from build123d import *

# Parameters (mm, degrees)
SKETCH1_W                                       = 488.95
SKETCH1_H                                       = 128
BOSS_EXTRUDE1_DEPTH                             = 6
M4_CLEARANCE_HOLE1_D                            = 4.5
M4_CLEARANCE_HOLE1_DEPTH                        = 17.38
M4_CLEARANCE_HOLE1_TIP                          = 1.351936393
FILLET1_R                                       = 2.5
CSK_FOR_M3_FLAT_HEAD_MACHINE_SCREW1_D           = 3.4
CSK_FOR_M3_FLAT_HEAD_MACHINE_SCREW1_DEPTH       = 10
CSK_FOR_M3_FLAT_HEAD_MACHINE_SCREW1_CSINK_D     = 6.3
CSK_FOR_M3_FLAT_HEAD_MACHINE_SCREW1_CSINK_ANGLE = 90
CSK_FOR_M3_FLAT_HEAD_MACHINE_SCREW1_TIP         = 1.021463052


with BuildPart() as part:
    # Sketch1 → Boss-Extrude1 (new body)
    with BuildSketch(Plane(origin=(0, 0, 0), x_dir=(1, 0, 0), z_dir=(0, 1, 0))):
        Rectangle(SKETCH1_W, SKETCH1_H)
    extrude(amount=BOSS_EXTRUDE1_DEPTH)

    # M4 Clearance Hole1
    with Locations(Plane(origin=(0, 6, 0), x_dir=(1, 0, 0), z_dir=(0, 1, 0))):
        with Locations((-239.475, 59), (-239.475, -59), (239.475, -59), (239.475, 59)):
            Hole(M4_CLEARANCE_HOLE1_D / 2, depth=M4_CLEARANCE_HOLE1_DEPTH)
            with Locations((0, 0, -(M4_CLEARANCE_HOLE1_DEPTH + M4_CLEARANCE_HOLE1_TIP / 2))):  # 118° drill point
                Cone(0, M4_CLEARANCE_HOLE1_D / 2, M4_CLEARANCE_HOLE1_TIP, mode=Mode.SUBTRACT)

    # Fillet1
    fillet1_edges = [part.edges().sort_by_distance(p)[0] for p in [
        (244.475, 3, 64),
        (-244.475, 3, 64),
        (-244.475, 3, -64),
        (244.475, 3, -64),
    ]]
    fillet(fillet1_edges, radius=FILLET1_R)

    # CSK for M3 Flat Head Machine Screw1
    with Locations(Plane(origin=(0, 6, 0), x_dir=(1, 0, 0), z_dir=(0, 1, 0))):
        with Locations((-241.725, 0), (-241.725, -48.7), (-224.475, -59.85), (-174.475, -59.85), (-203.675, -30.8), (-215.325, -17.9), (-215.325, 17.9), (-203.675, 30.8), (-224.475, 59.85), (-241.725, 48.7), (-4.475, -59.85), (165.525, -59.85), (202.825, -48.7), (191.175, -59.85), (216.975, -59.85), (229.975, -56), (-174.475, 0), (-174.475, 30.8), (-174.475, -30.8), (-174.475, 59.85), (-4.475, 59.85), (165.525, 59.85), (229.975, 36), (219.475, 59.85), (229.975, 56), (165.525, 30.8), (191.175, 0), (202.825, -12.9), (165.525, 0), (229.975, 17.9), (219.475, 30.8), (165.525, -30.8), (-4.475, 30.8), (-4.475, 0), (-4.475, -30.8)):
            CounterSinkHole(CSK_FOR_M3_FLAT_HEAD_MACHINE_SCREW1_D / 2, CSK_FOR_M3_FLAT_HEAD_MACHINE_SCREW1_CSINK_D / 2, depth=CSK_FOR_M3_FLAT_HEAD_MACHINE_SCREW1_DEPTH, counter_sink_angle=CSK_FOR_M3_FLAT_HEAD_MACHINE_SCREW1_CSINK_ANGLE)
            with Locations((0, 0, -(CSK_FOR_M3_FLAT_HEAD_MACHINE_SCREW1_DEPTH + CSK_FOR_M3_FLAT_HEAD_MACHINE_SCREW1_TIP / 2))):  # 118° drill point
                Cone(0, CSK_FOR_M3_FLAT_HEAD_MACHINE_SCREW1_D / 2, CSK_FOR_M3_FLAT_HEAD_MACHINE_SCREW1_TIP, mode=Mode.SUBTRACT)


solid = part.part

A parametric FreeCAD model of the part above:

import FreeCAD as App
import Part
import Sketcher
from FreeCAD import Vector
Q = App.Units.Quantity


def edges_at(feature, points):
    """Names of the edges that pass closest to the given points."""
    edges = feature.Shape.Edges
    near = lambda p: min(range(len(edges)), key=lambda i: edges[i].distToShape(Part.Vertex(*p))[0])
    return sorted({f"Edge{near(p) + 1}" for p in points})

doc = App.newDocument("Part")
params = doc.addObject("Spreadsheet::Sheet", "Params")
for row, (alias, value) in enumerate([
    ("sketch1_height", "128 mm"),
    ("sketch1_width", "488.95 mm"),
    ("pad1_length", "6 mm"),
    ("sketch2_diameter", "4.5 mm"),
    ("hole_diameter", "4.5 mm"),
    ("hole_depth", "17.38 mm"),
    ("fillet_radius", "2.5 mm"),
    ("sketch3_diameter", "3.4 mm"),
    ("hole2_diameter", "3.4 mm"),
    ("hole2_depth", "10 mm"),
    ("hole2_csink_diameter", "6.3 mm"),
], start=1):
    params.set(f"A{row}", alias)
    params.set(f"B{row}", "=" + value)
    params.setAlias(f"B{row}", alias)

body = doc.addObject("PartDesign::Body", "Body")

# Sketch on XZ plane
sketch1 = body.newObject("Sketcher::SketchObject", "Sketch")
sketch1.AttachmentSupport = (doc.getObject("XZ_Plane"), [""])
sketch1.MapMode = "FlatFace"
sketch1.addGeometry([
    Part.LineSegment(Vector(-244.475, -64, 0), Vector(-244.475, 64, 0)),
    Part.LineSegment(Vector(-244.475, 64, 0), Vector(244.475, 64, 0)),
    Part.LineSegment(Vector(244.475, 64, 0), Vector(244.475, -64, 0)),
    Part.LineSegment(Vector(244.475, -64, 0), Vector(-244.475, -64, 0)),
], False)
sketch1.addConstraint([
    Sketcher.Constraint("Coincident", 0, 2, 1, 1),
    Sketcher.Constraint("Coincident", 1, 2, 2, 1),
    Sketcher.Constraint("Coincident", 2, 2, 3, 1),
    Sketcher.Constraint("Coincident", 3, 2, 0, 1),
    Sketcher.Constraint("Vertical", 0),
    Sketcher.Constraint("Horizontal", 1),
    Sketcher.Constraint("Vertical", 2),
    Sketcher.Constraint("Horizontal", 3),
    Sketcher.Constraint("Symmetric", 0, 2, 2, 2, -1, 1),
    Sketcher.Constraint("DistanceY", 0, 1, 0, 2, Q("128 mm")),
    Sketcher.Constraint("DistanceX", 1, 1, 1, 2, Q("488.95 mm")),
])
sketch1.setExpression("Constraints[9]", "Params.sketch1_height")
sketch1.setExpression("Constraints[10]", "Params.sketch1_width")
pad1 = body.newObject("PartDesign::Pad", "Pad")
pad1.Profile = sketch1
pad1.setExpression("Length", "Params.pad1_length")
pad1.Reversed = True

# Sketch on XZ plane
sketch2 = body.newObject("Sketcher::SketchObject", "Sketch001")
sketch2.AttachmentSupport = (doc.getObject("XZ_Plane"), [""])
sketch2.MapMode = "FlatFace"
sketch2.AttachmentOffset = App.Placement(Vector(0, 0, -6), App.Rotation())
sketch2.addGeometry([
    Part.Circle(Vector(-239.475, -59, 0), Vector(0, 0, 1), 2.25),
    Part.Circle(Vector(-239.475, 59, 0), Vector(0, 0, 1), 2.25),
    Part.Circle(Vector(239.475, 59, 0), Vector(0, 0, 1), 2.25),
    Part.Circle(Vector(239.475, -59, 0), Vector(0, 0, 1), 2.25),
], False)
sketch2.addConstraint([
    Sketcher.Constraint("Equal", 0, 1),
    Sketcher.Constraint("Equal", 1, 2),
    Sketcher.Constraint("Equal", 2, 3),
    Sketcher.Constraint("Symmetric", 0, 3, 2, 3, -1, 1),
    Sketcher.Constraint("Symmetric", 1, 3, 3, 3, -1, 1),
    Sketcher.Constraint("Symmetric", 1, 3, 2, 3, -2),
    Sketcher.Constraint("Diameter", 0, Q("4.5 mm")),
    Sketcher.Constraint("DistanceY", 0, 3, -1, 1, Q("59 mm")),
    Sketcher.Constraint("DistanceX", 1, 3, 2, 3, Q("478.95 mm")),
])
sketch2.setExpression("Constraints[6]", "Params.sketch2_diameter")
doc.recompute()
hole = body.newObject("PartDesign::Hole", "Hole")
hole.Profile = sketch2
hole.ThreadType = "None"
hole.setExpression("Diameter", "Params.hole_diameter")
hole.DepthType = "Dimension"
hole.setExpression("Depth", "Params.hole_depth")
hole.DrillPoint = "Angled"
hole.DrillPointAngle = 118
hole.Reversed = True
doc.recompute()

fillet = body.newObject("PartDesign::Fillet", "Fillet")
fillet.Base = (hole, edges_at(hole, [
    (244.475, 3, 64),
    (-244.475, 3, 64),
    (-244.475, 3, -64),
    (244.475, 3, -64),
]))
fillet.setExpression("Radius", "Params.fillet_radius")

# Sketch on XZ plane
sketch3 = body.newObject("Sketcher::SketchObject", "Sketch002")
sketch3.AttachmentSupport = (doc.getObject("XZ_Plane"), [""])
sketch3.MapMode = "FlatFace"
sketch3.AttachmentOffset = App.Placement(Vector(0, 0, -6), App.Rotation())
sketch3.addGeometry([
    Part.Circle(Vector(-241.725, 0, 0), Vector(0, 0, 1), 1.7),  # 0
    Part.Circle(Vector(-241.725, 48.7, 0), Vector(0, 0, 1), 1.7),  # 1
    Part.Circle(Vector(-224.475, 59.85, 0), Vector(0, 0, 1), 1.7),  # 2
    Part.Circle(Vector(-174.475, 59.85, 0), Vector(0, 0, 1), 1.7),  # 3
    Part.Circle(Vector(-203.675, 30.8, 0), Vector(0, 0, 1), 1.7),  # 4
    Part.Circle(Vector(-215.325, 17.9, 0), Vector(0, 0, 1), 1.7),  # 5
    Part.Circle(Vector(-215.325, -17.9, 0), Vector(0, 0, 1), 1.7),  # 6
    Part.Circle(Vector(-203.675, -30.8, 0), Vector(0, 0, 1), 1.7),  # 7
    Part.Circle(Vector(-224.475, -59.85, 0), Vector(0, 0, 1), 1.7),  # 8
    Part.Circle(Vector(-241.725, -48.7, 0), Vector(0, 0, 1), 1.7),  # 9
    Part.Circle(Vector(-4.475, 59.85, 0), Vector(0, 0, 1), 1.7),  # 10
    Part.Circle(Vector(165.525, 59.85, 0), Vector(0, 0, 1), 1.7),  # 11
    Part.Circle(Vector(202.825, 48.7, 0), Vector(0, 0, 1), 1.7),  # 12
    Part.Circle(Vector(191.175, 59.85, 0), Vector(0, 0, 1), 1.7),  # 13
    Part.Circle(Vector(216.975, 59.85, 0), Vector(0, 0, 1), 1.7),  # 14
    Part.Circle(Vector(229.975, 56, 0), Vector(0, 0, 1), 1.7),  # 15
    Part.Circle(Vector(-174.475, 0, 0), Vector(0, 0, 1), 1.7),  # 16
    Part.Circle(Vector(-174.475, -30.8, 0), Vector(0, 0, 1), 1.7),  # 17
    Part.Circle(Vector(-174.475, 30.8, 0), Vector(0, 0, 1), 1.7),  # 18
    Part.Circle(Vector(-174.475, -59.85, 0), Vector(0, 0, 1), 1.7),  # 19
    Part.Circle(Vector(-4.475, -59.85, 0), Vector(0, 0, 1), 1.7),  # 20
    Part.Circle(Vector(165.525, -59.85, 0), Vector(0, 0, 1), 1.7),  # 21
    Part.Circle(Vector(229.975, -36, 0), Vector(0, 0, 1), 1.7),  # 22
    Part.Circle(Vector(219.475, -59.85, 0), Vector(0, 0, 1), 1.7),  # 23
    Part.Circle(Vector(229.975, -56, 0), Vector(0, 0, 1), 1.7),  # 24
    Part.Circle(Vector(165.525, -30.8, 0), Vector(0, 0, 1), 1.7),  # 25
    Part.Circle(Vector(191.175, 0, 0), Vector(0, 0, 1), 1.7),  # 26
    Part.Circle(Vector(202.825, 12.9, 0), Vector(0, 0, 1), 1.7),  # 27
    Part.Circle(Vector(165.525, 0, 0), Vector(0, 0, 1), 1.7),  # 28
    Part.Circle(Vector(229.975, -17.9, 0), Vector(0, 0, 1), 1.7),  # 29
    Part.Circle(Vector(219.475, -30.8, 0), Vector(0, 0, 1), 1.7),  # 30
    Part.Circle(Vector(165.525, 30.8, 0), Vector(0, 0, 1), 1.7),  # 31
    Part.Circle(Vector(-4.475, -30.8, 0), Vector(0, 0, 1), 1.7),  # 32
    Part.Circle(Vector(-4.475, 0, 0), Vector(0, 0, 1), 1.7),  # 33
    Part.Circle(Vector(-4.475, 30.8, 0), Vector(0, 0, 1), 1.7),  # 34
], False)
sketch3.addConstraint([
    Sketcher.Constraint("Equal", 0, 1),
    Sketcher.Constraint("Equal", 1, 2),
    Sketcher.Constraint("Equal", 2, 3),
    Sketcher.Constraint("Equal", 3, 4),
    Sketcher.Constraint("Equal", 4, 5),
    Sketcher.Constraint("Equal", 5, 6),
    Sketcher.Constraint("Equal", 6, 7),
    Sketcher.Constraint("Equal", 7, 8),
    Sketcher.Constraint("Equal", 8, 9),
    Sketcher.Constraint("Equal", 9, 10),
    Sketcher.Constraint("Equal", 10, 11),
    Sketcher.Constraint("Equal", 11, 12),
    Sketcher.Constraint("Equal", 12, 13),
    Sketcher.Constraint("Equal", 13, 14),
    Sketcher.Constraint("Equal", 14, 15),
    Sketcher.Constraint("Equal", 15, 16),
    Sketcher.Constraint("Equal", 16, 17),
    Sketcher.Constraint("Equal", 17, 18),
    Sketcher.Constraint("Equal", 18, 19),
    Sketcher.Constraint("Equal", 19, 20),
    Sketcher.Constraint("Equal", 20, 21),
    Sketcher.Constraint("Equal", 21, 22),
    Sketcher.Constraint("Equal", 22, 23),
    Sketcher.Constraint("Equal", 23, 24),
    Sketcher.Constraint("Equal", 24, 25),
    Sketcher.Constraint("Equal", 25, 26),
    Sketcher.Constraint("Equal", 26, 27),
    Sketcher.Constraint("Equal", 27, 28),
    Sketcher.Constraint("Equal", 28, 29),
    Sketcher.Constraint("Equal", 29, 30),
    Sketcher.Constraint("Equal", 30, 31),
    Sketcher.Constraint("Equal", 31, 32),
    Sketcher.Constraint("Equal", 32, 33),
    Sketcher.Constraint("Equal", 33, 34),
    Sketcher.Constraint("Symmetric", 5, 3, 6, 3, -1),
    Sketcher.Constraint("Symmetric", 4, 3, 7, 3, -1),
    Sketcher.Constraint("Symmetric", 2, 3, 8, 3, -1),
    Sketcher.Constraint("Symmetric", 1, 3, 9, 3, -1),
    Sketcher.Constraint("Symmetric", 17, 3, 18, 3, -1),
    Sketcher.Constraint("Symmetric", 3, 3, 19, 3, -1),
    Sketcher.Constraint("Symmetric", 10, 3, 20, 3, -1),
    Sketcher.Constraint("Symmetric", 11, 3, 21, 3, -1),
    Sketcher.Constraint("Symmetric", 15, 3, 24, 3, -1),
    Sketcher.Constraint("Symmetric", 25, 3, 31, 3, -1),
    Sketcher.Constraint("Symmetric", 32, 3, 34, 3, -1),
    Sketcher.Constraint("PointOnObject", 0, 3, -1),
    Sketcher.Constraint("PointOnObject", 16, 3, -1),
    Sketcher.Constraint("PointOnObject", 26, 3, -1),
    Sketcher.Constraint("PointOnObject", 28, 3, -1),
    Sketcher.Constraint("PointOnObject", 33, 3, -1),
    Sketcher.Constraint("Horizontal", 2, 3, 3, 3),
    Sketcher.Constraint("Horizontal", 3, 3, 10, 3),
    Sketcher.Constraint("Horizontal", 10, 3, 11, 3),
    Sketcher.Constraint("Horizontal", 1, 3, 12, 3),
    Sketcher.Constraint("Horizontal", 11, 3, 13, 3),
    Sketcher.Constraint("Horizontal", 13, 3, 14, 3),
    Sketcher.Constraint("Horizontal", 7, 3, 17, 3),
    Sketcher.Constraint("Horizontal", 21, 3, 23, 3),
    Sketcher.Constraint("Horizontal", 17, 3, 25, 3),
    Sketcher.Constraint("Horizontal", 6, 3, 29, 3),
    Sketcher.Constraint("Horizontal", 25, 3, 30, 3),
    Sketcher.Constraint("Horizontal", 30, 3, 32, 3),
    Sketcher.Constraint("Vertical", 0, 3, 1, 3),
    Sketcher.Constraint("Vertical", 3, 3, 16, 3),
    Sketcher.Constraint("Vertical", 16, 3, 17, 3),
    Sketcher.Constraint("Vertical", 15, 3, 22, 3),
    Sketcher.Constraint("Vertical", 21, 3, 25, 3),
    Sketcher.Constraint("Vertical", 13, 3, 26, 3),
    Sketcher.Constraint("Vertical", 12, 3, 27, 3),
    Sketcher.Constraint("Vertical", 25, 3, 28, 3),
    Sketcher.Constraint("Vertical", 24, 3, 29, 3),
    Sketcher.Constraint("Vertical", 23, 3, 30, 3),
    Sketcher.Constraint("Vertical", 20, 3, 32, 3),
    Sketcher.Constraint("Vertical", 32, 3, 33, 3),
    Sketcher.Constraint("Diameter", 0, Q("3.4 mm")),
    Sketcher.Constraint("DistanceY", -1, 1, 15, 3, Q("56 mm")),
    Sketcher.Constraint("DistanceY", 22, 3, -1, 1, Q("36 mm")),
    Sketcher.Constraint("DistanceX", 2, 3, 3, 3, Q("50 mm")),
    Sketcher.Constraint("DistanceX", 3, 3, 10, 3, Q("170 mm")),
    Sketcher.Constraint("DistanceX", 10, 3, 11, 3, Q("170 mm")),
    Sketcher.Constraint("DistanceX", 14, 3, 15, 3, Q("13 mm")),
    Sketcher.Constraint("DistanceY", -1, 1, 1, 3, Q("48.7 mm")),
    Sketcher.Constraint("DistanceY", -1, 1, 4, 3, Q("30.8 mm")),
    Sketcher.Constraint("DistanceY", -1, 1, 5, 3, Q("17.9 mm")),
    Sketcher.Constraint("DistanceY", -1, 1, 27, 3, Q("12.9 mm")),
    Sketcher.Constraint("DistanceX", 2, 3, 4, 3, Q("20.8 mm")),
    Sketcher.Constraint("DistanceX", 0, 3, 5, 3, Q("26.4 mm")),
    Sketcher.Constraint("DistanceX", 11, 3, 12, 3, Q("37.3 mm")),
    Sketcher.Constraint("DistanceX", 13, 3, 14, 3, Q("25.8 mm")),
    Sketcher.Constraint("DistanceY", 20, 3, 10, 3, Q("119.7 mm")),
    Sketcher.Constraint("DistanceX", 23, 3, 22, 3, Q("10.5 mm")),
    Sketcher.Constraint("DistanceX", 1, 3, 2, 3, Q("17.25 mm")),
    Sketcher.Constraint("DistanceX", 13, 3, 12, 3, Q("11.65 mm")),
    Sketcher.Constraint("DistanceX", 0, 3, -1, 1, Q("241.725 mm")),
])
sketch3.setExpression("Constraints[74]", "Params.sketch3_diameter")
doc.recompute()
hole2 = body.newObject("PartDesign::Hole", "Hole001")
hole2.Profile = sketch3
hole2.ThreadType = "None"
hole2.setExpression("Diameter", "Params.hole2_diameter")
hole2.DepthType = "Dimension"
hole2.setExpression("Depth", "Params.hole2_depth")
hole2.DrillPoint = "Angled"
hole2.DrillPointAngle = 118
hole2.HoleCutType = "Countersink"
hole2.setExpression("HoleCutDiameter", "Params.hole2_csink_diameter")
hole2.HoleCutCountersinkAngle = 90
hole2.Reversed = True

doc.recompute()
